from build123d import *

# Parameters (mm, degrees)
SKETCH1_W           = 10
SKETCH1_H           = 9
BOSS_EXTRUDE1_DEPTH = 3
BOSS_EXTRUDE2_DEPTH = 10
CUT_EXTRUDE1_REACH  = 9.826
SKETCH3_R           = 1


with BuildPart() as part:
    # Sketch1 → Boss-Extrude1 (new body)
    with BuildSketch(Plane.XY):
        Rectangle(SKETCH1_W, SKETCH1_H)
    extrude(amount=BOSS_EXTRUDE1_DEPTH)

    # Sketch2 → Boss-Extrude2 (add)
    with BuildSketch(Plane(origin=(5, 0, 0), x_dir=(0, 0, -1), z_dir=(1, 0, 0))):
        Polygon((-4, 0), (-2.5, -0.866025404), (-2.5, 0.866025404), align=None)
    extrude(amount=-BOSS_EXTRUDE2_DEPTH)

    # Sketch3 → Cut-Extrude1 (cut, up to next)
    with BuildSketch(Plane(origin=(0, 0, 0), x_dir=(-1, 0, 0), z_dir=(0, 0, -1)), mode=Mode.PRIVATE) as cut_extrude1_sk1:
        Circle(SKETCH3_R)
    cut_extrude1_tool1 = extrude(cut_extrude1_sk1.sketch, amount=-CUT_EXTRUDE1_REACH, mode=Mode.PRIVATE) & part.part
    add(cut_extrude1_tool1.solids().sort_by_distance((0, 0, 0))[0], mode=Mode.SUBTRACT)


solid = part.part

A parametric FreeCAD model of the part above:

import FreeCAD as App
import Part
import Sketcher

V = App.Vector
Q = App.Units.Quantity

doc = App.newDocument("Part")
params = doc.addObject("Spreadsheet::Sheet", "Params")
for row, (alias, value) in enumerate([
    ("sketch1_width", "10 mm"),
    ("sketch1_height", "9 mm"),
    ("pad1_length", "3 mm"),
    ("pad2_length", "10 mm"),
    ("sketch3_diameter", "2 mm"),
    ("pocket1_length", "4 mm"),
], start=1):
    params.set(f"A{row}", alias)
    params.set(f"B{row}", "=" + value)
    params.setAlias(f"B{row}", alias)

body = doc.addObject("PartDesign::Body", "Body")

sketch1 = body.newObject("Sketcher::SketchObject", "Sketch")
sketch1.AttachmentSupport = (doc.getObject("XY_Plane"), [""])
sketch1.MapMode = "FlatFace"
sketch1.addGeometry([
    Part.LineSegment(V(-5, 4, 0), V(-5, -4, 0)),
    Part.LineSegment(V(-5, -4, 0), V(5, -4, 0)),
    Part.LineSegment(V(5, -4, 0), V(5, 4, 0)),
    Part.LineSegment(V(5, 4, 0), V(-5, 4, 0)),
], False)
sketch1.addConstraint([
    Sketcher.Constraint("Coincident", 0, 2, 1, 1),
    Sketcher.Constraint("Coincident", 1, 2, 2, 1),
    Sketcher.Constraint("Coincident", 2, 2, 3, 1),
    Sketcher.Constraint("Coincident", 3, 2, 0, 1),
    Sketcher.Constraint("Vertical", 0),
    Sketcher.Constraint("Horizontal", 1),
    Sketcher.Constraint("Vertical", 2),
    Sketcher.Constraint("Horizontal", 3),
    Sketcher.Constraint("Symmetric", 0, 2, 2, 2, -1, 1),
    Sketcher.Constraint("DistanceX", 1, 1, 1, 2, Q("10 mm")),
    Sketcher.Constraint("DistanceY", 0, 2, 0, 1, Q("9 mm")),
])
sketch1.setExpression("Constraints[9]", "Params.sketch1_width")
sketch1.setExpression("Constraints[10]", "Params.sketch1_height")
pad1 = body.newObject("PartDesign::Pad", "Pad")
pad1.Profile = sketch1
pad1.setExpression("Length", "Params.pad1_length")

sketch2 = body.newObject("Sketcher::SketchObject", "Sketch001")
sketch2.AttachmentSupport = (doc.getObject("YZ_Plane"), [""])
sketch2.MapMode = "FlatFace"
sketch2.AttachmentOffset = App.Placement(V(0, 0, 5), App.Rotation())
sketch2.addGeometry([
    Part.LineSegment(V(0, 4, 0), V(-0.9, 2.5, 0)),
    Part.LineSegment(V(-0.9, 2.5, 0), V(0.9, 2.5, 0)),
    Part.LineSegment(V(0.9, 2.5, 0), V(0, 4, 0)),
], False)
sketch2.addConstraint([
    Sketcher.Constraint("Coincident", 0, 2, 1, 1),
    Sketcher.Constraint("Coincident", 1, 2, 2, 1),
    Sketcher.Constraint("Coincident", 2, 2, 0, 1),
    Sketcher.Constraint("Horizontal", 1),
    Sketcher.Constraint("PointOnObject", 2, 2, -2),
    Sketcher.Constraint("Equal", 0, 2),
    Sketcher.Constraint("Angle", 0, Q("-120 deg")),
    Sketcher.Constraint("DistanceY", -1, 1, 2, 2, Q("4 mm")),
    Sketcher.Constraint("DistanceY", -1, 1, 0, 2, Q("2.5 mm")),
])
pad2 = body.newObject("PartDesign::Pad", "Pad001")
pad2.Profile = sketch2
pad2.setExpression("Length", "Params.pad2_length")
pad2.Reversed = True

sketch3 = body.newObject("Sketcher::SketchObject", "Sketch002")
sketch3.AttachmentSupport = (doc.getObject("XY_Plane"), [""])
sketch3.MapMode = "FlatFace"
sketch3.addGeometry(Part.Circle(V(0, 0, 0), V(0, 0, 1), 1), False)
sketch3.addConstraint([
    Sketcher.Constraint("Coincident", 0, 3, -1, 1),
    Sketcher.Constraint("Diameter", 0, Q("2 mm")),
])
sketch3.setExpression("Constraints[1]", "Params.sketch3_diameter")
pocket1 = body.newObject("PartDesign::Pocket", "Pocket")
pocket1.Profile = sketch3
pocket1.setExpression("Length", "Params.pocket1_length")
pocket1.Reversed = True

doc.recompute()
